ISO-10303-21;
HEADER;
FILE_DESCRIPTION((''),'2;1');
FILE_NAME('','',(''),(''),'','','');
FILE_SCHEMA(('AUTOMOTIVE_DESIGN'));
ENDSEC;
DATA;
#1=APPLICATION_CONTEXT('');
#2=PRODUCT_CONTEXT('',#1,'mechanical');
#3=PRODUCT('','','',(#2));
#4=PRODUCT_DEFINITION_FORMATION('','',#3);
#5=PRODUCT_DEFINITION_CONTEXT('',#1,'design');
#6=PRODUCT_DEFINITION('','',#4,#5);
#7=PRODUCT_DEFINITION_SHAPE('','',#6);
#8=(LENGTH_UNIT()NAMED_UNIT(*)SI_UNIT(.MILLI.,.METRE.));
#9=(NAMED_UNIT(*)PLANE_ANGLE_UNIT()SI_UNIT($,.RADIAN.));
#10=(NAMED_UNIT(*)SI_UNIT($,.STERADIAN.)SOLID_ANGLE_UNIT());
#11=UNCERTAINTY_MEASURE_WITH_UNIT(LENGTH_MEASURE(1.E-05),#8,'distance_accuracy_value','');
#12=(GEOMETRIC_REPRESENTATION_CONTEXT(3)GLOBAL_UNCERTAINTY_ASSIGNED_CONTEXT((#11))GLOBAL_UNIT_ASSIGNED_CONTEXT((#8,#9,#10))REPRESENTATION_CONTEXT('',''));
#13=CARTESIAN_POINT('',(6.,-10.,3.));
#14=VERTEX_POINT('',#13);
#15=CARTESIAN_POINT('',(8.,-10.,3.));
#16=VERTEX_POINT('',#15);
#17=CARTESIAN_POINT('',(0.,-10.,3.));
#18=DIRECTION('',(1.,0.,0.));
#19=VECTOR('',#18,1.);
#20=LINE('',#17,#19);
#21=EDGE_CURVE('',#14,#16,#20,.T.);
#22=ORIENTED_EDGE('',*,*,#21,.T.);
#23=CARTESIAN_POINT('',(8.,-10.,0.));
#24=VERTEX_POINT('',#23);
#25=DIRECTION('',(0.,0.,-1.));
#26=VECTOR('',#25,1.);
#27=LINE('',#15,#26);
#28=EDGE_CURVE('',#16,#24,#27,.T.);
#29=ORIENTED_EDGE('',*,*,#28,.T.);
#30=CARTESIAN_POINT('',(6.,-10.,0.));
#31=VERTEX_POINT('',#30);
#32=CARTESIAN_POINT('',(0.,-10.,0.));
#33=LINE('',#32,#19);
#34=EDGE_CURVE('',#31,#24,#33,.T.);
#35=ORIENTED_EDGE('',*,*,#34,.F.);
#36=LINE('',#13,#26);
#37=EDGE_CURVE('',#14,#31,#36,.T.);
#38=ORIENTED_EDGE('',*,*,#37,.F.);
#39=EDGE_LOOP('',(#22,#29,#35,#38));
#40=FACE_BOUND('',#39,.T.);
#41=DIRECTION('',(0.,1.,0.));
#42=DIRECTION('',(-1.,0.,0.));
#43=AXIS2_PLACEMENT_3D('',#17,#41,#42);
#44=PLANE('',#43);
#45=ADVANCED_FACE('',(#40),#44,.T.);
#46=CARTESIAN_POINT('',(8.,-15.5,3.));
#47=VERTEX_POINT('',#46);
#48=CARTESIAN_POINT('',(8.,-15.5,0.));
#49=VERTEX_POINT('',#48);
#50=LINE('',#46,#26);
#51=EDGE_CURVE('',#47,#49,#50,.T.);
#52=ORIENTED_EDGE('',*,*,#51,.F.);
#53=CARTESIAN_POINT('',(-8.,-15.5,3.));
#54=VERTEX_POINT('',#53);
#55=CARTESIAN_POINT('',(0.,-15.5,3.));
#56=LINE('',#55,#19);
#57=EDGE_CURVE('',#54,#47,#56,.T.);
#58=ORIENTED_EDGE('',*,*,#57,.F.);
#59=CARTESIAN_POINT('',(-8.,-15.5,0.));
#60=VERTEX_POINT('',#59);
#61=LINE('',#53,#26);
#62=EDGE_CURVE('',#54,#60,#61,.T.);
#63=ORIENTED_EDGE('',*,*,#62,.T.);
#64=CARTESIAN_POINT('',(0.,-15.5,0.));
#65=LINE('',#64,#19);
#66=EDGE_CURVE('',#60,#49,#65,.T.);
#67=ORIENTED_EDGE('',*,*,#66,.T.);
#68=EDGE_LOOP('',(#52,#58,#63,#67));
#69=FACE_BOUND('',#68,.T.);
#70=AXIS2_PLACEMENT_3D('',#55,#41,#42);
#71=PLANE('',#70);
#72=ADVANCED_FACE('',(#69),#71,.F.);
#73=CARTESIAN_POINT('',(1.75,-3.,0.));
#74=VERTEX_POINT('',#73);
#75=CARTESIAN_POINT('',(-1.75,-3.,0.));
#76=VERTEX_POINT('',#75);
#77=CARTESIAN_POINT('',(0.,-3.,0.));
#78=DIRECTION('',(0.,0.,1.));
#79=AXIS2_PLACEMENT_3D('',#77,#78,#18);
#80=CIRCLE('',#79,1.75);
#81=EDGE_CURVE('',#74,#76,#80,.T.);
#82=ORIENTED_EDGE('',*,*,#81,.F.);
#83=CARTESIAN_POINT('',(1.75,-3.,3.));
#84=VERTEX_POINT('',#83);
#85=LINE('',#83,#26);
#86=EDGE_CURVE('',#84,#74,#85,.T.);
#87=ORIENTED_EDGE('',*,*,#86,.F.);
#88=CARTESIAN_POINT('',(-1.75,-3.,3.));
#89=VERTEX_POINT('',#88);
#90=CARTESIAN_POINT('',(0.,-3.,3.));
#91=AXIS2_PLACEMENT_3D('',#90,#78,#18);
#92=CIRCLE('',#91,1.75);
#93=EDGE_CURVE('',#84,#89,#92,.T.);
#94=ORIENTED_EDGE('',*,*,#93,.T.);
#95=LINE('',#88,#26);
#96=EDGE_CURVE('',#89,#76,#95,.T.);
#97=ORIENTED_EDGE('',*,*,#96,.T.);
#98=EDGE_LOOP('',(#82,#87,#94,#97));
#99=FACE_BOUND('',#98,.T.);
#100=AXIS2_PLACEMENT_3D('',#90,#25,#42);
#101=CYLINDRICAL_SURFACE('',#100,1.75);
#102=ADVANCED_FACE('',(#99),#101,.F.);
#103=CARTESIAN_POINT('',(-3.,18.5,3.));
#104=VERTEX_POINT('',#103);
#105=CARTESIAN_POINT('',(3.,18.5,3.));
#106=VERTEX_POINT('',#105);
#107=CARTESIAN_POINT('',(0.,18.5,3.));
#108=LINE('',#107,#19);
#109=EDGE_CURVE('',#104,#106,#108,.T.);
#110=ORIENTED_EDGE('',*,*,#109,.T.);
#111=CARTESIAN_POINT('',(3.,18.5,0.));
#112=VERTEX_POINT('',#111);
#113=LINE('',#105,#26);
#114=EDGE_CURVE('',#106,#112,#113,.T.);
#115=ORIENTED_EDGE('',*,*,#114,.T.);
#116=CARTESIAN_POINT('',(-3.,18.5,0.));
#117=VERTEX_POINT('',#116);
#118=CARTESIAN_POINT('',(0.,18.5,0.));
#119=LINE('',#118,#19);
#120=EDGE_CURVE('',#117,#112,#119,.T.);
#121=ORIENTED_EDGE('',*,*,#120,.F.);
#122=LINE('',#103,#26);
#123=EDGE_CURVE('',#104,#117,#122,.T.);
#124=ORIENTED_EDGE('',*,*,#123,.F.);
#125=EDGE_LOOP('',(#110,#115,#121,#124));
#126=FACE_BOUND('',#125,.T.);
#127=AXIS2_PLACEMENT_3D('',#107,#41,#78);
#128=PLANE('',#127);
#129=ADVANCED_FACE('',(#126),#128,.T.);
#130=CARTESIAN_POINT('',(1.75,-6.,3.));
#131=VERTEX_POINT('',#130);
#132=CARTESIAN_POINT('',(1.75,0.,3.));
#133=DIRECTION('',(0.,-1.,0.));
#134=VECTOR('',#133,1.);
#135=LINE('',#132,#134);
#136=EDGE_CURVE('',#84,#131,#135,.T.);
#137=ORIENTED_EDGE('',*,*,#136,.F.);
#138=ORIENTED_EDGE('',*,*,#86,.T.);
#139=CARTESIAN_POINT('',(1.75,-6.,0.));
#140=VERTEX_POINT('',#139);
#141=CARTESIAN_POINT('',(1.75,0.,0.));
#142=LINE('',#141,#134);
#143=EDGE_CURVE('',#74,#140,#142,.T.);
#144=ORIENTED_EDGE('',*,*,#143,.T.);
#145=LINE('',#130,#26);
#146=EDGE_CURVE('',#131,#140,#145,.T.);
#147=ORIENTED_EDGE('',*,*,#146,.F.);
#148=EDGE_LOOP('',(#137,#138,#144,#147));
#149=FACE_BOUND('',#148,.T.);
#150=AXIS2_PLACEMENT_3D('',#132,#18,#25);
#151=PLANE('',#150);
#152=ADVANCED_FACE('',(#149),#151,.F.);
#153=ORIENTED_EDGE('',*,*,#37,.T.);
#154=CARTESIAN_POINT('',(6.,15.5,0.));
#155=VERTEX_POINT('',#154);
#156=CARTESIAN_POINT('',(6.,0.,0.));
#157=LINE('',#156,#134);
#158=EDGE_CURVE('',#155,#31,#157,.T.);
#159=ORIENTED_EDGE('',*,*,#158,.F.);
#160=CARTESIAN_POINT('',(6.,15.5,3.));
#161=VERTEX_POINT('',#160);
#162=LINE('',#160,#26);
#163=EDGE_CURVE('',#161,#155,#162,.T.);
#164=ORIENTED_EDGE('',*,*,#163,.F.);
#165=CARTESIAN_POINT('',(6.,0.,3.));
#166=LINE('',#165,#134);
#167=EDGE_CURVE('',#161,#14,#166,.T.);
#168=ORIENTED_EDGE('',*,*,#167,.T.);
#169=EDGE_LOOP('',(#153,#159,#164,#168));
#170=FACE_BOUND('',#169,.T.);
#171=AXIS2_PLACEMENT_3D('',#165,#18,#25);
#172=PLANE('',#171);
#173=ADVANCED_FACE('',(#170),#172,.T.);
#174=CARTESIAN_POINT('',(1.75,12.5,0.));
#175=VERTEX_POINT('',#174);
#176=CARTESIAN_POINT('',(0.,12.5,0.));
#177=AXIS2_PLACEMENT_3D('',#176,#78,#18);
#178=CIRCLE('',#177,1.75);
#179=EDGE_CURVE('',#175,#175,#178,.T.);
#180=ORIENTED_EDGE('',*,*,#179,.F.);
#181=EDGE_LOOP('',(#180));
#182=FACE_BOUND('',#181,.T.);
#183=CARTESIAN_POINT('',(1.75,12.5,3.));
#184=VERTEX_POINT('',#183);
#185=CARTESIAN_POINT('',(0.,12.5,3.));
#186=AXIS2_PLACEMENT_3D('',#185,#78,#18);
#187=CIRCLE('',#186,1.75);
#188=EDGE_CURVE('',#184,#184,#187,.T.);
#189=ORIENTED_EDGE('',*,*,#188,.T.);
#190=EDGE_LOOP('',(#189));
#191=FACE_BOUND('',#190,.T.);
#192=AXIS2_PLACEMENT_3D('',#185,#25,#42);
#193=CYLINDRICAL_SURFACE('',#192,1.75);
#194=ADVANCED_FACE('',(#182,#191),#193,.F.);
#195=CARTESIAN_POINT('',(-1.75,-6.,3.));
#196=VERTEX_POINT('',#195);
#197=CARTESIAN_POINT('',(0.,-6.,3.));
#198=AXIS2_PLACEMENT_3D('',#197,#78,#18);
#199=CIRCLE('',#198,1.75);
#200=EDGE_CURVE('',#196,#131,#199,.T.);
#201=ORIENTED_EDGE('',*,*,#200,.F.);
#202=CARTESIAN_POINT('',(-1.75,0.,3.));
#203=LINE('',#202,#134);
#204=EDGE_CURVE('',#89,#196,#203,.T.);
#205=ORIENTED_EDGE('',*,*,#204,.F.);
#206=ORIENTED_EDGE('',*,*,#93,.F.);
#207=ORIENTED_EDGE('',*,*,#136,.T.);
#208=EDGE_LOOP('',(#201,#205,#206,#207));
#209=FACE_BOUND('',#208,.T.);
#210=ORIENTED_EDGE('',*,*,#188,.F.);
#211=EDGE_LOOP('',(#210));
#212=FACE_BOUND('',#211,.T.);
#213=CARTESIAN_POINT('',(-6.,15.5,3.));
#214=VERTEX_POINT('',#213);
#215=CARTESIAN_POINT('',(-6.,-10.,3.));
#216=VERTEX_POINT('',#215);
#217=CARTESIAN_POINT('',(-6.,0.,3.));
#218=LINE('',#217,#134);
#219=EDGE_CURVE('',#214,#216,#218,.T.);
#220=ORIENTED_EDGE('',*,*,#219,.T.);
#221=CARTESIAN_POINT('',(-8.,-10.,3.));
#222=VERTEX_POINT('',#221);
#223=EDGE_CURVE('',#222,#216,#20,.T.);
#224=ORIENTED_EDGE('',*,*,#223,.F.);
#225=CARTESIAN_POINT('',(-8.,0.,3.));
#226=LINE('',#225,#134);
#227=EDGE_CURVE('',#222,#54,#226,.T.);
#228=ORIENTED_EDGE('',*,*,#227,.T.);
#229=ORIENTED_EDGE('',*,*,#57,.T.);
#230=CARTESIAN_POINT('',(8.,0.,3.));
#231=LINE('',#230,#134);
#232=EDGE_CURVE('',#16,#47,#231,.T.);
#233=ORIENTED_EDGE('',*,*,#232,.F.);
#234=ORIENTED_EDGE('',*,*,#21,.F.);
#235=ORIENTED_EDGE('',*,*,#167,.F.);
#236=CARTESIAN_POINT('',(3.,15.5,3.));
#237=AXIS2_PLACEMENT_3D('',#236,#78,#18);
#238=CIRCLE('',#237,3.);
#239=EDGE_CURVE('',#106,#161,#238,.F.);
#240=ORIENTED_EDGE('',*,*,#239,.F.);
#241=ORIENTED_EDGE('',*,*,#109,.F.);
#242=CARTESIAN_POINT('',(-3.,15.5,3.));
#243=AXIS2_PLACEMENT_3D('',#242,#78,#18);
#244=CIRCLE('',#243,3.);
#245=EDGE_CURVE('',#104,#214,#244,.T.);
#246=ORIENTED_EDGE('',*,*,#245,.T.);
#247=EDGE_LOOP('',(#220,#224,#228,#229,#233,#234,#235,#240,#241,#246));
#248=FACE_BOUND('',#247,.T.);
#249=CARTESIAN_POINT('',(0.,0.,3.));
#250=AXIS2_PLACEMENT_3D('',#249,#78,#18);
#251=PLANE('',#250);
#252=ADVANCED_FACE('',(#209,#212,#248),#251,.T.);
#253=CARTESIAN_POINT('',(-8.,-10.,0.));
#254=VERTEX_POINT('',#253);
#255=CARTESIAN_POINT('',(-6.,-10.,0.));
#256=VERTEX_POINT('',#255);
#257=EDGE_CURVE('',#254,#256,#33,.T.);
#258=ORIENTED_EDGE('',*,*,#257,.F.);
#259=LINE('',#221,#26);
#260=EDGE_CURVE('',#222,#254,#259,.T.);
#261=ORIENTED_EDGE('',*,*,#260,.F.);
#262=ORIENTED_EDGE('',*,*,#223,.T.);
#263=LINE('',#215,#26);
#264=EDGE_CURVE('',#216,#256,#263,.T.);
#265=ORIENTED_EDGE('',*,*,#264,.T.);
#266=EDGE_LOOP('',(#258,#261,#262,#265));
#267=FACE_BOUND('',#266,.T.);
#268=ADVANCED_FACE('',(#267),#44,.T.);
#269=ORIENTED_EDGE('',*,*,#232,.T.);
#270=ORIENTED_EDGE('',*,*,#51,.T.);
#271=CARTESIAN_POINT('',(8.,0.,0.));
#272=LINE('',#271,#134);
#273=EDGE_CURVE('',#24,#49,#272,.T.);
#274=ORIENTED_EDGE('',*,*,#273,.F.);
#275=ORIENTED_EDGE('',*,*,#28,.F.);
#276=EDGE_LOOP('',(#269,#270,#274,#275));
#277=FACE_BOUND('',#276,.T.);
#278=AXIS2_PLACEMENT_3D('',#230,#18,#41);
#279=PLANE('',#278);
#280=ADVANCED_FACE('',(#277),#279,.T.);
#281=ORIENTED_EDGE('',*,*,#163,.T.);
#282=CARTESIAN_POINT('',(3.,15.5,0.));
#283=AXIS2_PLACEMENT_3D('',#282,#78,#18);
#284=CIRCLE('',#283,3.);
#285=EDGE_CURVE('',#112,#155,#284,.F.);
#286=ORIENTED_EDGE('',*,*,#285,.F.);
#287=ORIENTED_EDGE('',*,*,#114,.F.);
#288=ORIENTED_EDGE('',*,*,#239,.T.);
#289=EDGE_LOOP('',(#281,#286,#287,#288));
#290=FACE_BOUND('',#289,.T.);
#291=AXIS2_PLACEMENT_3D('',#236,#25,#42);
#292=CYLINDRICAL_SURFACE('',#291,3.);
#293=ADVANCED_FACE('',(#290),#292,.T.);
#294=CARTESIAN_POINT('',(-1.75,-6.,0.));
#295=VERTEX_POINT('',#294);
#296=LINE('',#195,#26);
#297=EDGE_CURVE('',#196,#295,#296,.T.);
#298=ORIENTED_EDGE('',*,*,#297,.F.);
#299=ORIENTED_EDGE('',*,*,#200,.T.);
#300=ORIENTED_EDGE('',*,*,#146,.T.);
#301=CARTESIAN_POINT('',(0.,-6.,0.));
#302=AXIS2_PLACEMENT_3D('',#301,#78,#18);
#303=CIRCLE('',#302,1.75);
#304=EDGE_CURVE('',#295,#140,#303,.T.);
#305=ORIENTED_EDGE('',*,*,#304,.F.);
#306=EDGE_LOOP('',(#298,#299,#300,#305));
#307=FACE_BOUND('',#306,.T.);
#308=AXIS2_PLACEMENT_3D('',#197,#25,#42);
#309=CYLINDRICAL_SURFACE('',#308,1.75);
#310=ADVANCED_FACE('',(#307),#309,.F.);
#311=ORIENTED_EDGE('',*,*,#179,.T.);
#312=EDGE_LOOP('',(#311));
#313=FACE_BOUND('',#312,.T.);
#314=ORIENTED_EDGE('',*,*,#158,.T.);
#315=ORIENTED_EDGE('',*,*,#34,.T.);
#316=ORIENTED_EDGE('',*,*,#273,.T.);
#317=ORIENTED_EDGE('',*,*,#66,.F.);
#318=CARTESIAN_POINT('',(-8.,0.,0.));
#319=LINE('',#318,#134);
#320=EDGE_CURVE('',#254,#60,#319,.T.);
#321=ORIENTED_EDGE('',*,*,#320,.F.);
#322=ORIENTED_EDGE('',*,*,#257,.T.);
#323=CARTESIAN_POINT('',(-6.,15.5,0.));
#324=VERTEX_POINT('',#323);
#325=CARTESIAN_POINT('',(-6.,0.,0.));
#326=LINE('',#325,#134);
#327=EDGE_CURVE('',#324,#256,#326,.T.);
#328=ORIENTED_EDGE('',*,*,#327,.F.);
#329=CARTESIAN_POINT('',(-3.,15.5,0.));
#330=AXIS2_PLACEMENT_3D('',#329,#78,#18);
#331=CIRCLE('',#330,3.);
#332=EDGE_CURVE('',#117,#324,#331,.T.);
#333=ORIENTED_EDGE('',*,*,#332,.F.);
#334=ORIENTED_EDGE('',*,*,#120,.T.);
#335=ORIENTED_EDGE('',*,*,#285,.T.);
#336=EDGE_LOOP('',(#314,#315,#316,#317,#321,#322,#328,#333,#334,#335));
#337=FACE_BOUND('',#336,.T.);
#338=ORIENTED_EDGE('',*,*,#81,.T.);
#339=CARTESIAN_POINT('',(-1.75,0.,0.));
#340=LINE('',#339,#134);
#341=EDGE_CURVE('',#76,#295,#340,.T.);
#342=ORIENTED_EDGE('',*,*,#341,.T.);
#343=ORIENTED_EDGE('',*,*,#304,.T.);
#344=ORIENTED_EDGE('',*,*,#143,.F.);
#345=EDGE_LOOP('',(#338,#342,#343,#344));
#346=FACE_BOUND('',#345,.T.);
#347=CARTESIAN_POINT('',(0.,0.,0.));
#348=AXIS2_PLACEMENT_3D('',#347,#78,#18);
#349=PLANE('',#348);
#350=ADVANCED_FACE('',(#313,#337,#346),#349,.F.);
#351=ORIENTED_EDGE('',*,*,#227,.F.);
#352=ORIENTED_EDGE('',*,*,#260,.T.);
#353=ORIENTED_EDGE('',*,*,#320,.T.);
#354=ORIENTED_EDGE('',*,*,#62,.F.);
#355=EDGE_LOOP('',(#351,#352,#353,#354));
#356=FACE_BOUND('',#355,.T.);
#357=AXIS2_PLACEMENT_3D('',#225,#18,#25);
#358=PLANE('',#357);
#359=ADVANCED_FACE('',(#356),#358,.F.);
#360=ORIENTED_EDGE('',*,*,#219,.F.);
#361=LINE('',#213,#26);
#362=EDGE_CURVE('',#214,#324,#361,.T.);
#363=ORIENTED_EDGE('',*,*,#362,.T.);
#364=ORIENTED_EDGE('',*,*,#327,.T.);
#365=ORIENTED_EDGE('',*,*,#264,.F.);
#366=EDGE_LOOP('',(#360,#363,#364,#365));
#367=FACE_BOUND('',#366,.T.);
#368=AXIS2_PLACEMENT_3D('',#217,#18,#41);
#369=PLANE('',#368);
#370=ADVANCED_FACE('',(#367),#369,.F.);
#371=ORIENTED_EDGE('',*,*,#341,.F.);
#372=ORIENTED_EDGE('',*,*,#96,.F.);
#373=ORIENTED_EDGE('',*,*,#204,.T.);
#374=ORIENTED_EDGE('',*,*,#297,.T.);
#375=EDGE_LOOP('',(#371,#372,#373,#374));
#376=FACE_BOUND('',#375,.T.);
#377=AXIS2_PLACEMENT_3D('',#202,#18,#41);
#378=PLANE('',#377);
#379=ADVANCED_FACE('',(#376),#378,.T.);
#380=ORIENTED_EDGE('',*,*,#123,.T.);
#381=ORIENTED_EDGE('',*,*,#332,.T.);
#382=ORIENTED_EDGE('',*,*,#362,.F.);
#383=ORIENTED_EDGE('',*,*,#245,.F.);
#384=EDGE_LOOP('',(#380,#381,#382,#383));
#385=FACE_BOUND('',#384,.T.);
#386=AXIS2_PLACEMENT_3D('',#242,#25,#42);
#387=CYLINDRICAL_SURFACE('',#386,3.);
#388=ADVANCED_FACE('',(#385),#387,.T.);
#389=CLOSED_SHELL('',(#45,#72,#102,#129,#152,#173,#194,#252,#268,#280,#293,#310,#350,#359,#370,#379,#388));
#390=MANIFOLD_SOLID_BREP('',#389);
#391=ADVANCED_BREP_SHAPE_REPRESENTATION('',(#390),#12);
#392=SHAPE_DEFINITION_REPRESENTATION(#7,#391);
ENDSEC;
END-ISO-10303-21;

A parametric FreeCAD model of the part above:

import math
import FreeCAD as App
import Part
import Sketcher

V = App.Vector

doc = App.newDocument("Part")
params = doc.addObject("Spreadsheet::Sheet", "Params")
for row, (alias, value) in enumerate([
    ("sketch1_radius", "3 mm"),
    ("sketch1_diameter", "3.5 mm"),
    ("sketch1_width", "2 mm"),
    ("sketch1_width2", "16 mm"),
    ("sketch1_height", "3 mm"),
    ("pad1_length", "3 mm"),
], start=1):
    params.set(f"A{row}", alias)
    params.set(f"B{row}", "=" + value)
    params.setAlias(f"B{row}", alias)

body = doc.addObject("PartDesign::Body", "Body")

sketch1 = body.newObject("Sketcher::SketchObject", "Sketch")
sketch1.AttachmentSupport = (doc.getObject("XY_Plane"), [""])
sketch1.MapMode = "FlatFace"
sketch1.addGeometry(Part.ArcOfCircle(Part.Circle(V(-3, 15.5, 0), V(0, 0, 1), 3), math.radians(90), math.radians(180)), False)
sketch1.addGeometry(Part.LineSegment(V(-6, 15.5, 0), V(-6, -10, 0)), False)
sketch1.addGeometry(Part.LineSegment(V(-6, -10, 0), V(-8, -10, 0)), False)
sketch1.addGeometry(Part.LineSegment(V(-8, -10, 0), V(-8, -15.5, 0)), False)
sketch1.addGeometry(Part.LineSegment(V(-8, -15.5, 0), V(8, -15.5, 0)), False)
sketch1.addGeometry(Part.LineSegment(V(8, -15.5, 0), V(8, -10, 0)), False)
sketch1.addGeometry(Part.LineSegment(V(8, -10, 0), V(6, -10, 0)), False)
sketch1.addGeometry(Part.LineSegment(V(6, -10, 0), V(6, 15.5, 0)), False)
sketch1.addGeometry(Part.ArcOfCircle(Part.Circle(V(3, 15.5, 0), V(0, 0, 1), 3), math.radians(0), math.radians(90)), False)
sketch1.addGeometry(Part.LineSegment(V(3, 18.5, 0), V(-3, 18.5, 0)), False)
sketch1.addGeometry(Part.LineSegment(V(1.8, -3, 0), V(1.8, -6, 0)), False)
sketch1.addGeometry(Part.ArcOfCircle(Part.Circle(V(0, -6, 0), V(0, 0, 1), 1.8), math.radians(180), math.radians(360)), False)
sketch1.addGeometry(Part.LineSegment(V(-1.8, -6, 0), V(-1.8, -3, 0)), False)
sketch1.addGeometry(Part.ArcOfCircle(Part.Circle(V(0, -3, 0), V(0, 0, 1), 1.8), math.radians(0), math.radians(180)), False)
sketch1.addGeometry(Part.Circle(V(0, 12.5, 0), V(0, 0, 1), 1.8), False)
sketch1.addConstraint(Sketcher.Constraint("Tangent", 0, 2, 1, 1))
sketch1.addConstraint(Sketcher.Constraint("Coincident", 1, 2, 2, 1))
sketch1.addConstraint(Sketcher.Constraint("Coincident", 2, 2, 3, 1))
sketch1.addConstraint(Sketcher.Constraint("Coincident", 3, 2, 4, 1))
sketch1.addConstraint(Sketcher.Constraint("Coincident", 4, 2, 5, 1))
sketch1.addConstraint(Sketcher.Constraint("Coincident", 5, 2, 6, 1))
sketch1.addConstraint(Sketcher.Constraint("Coincident", 6, 2, 7, 1))
sketch1.addConstraint(Sketcher.Constraint("Tangent", 7, 2, 8, 1))
sketch1.addConstraint(Sketcher.Constraint("Tangent", 8, 2, 9, 1))
sketch1.addConstraint(Sketcher.Constraint("Tangent", 9, 2, 0, 1))
sketch1.addConstraint(Sketcher.Constraint("Tangent", 10, 2, 11, 2))
sketch1.addConstraint(Sketcher.Constraint("Tangent", 11, 1, 12, 1))
sketch1.addConstraint(Sketcher.Constraint("Tangent", 12, 2, 13, 2))
sketch1.addConstraint(Sketcher.Constraint("Tangent", 13, 1, 10, 1))
sketch1.addConstraint(Sketcher.Constraint("Vertical", 1))
sketch1.addConstraint(Sketcher.Constraint("Horizontal", 2))
sketch1.addConstraint(Sketcher.Constraint("Vertical", 3))
sketch1.addConstraint(Sketcher.Constraint("Horizontal", 4))
sketch1.addConstraint(Sketcher.Constraint("Vertical", 5))
sketch1.addConstraint(Sketcher.Constraint("Horizontal", 6))
sketch1.addConstraint(Sketcher.Constraint("Vertical", 7))
sketch1.addConstraint(Sketcher.Constraint("Horizontal", 9))
sketch1.addConstraint(Sketcher.Constraint("Vertical", 10))
sketch1.addConstraint(Sketcher.Constraint("Vertical", 12))
sketch1.addConstraint(Sketcher.Constraint("Equal", 0, 8))
sketch1.addConstraint(Sketcher.Constraint("Equal", 13, 14))
sketch1.addConstraint(Sketcher.Constraint("Symmetric", 2, 2, 5, 2, -2))
sketch1.addConstraint(Sketcher.Constraint("PointOnObject", 11, 3, -2))
sketch1.addConstraint(Sketcher.Constraint("PointOnObject", 14, 3, -2))
sketch1.addConstraint(Sketcher.Constraint("Equal", 2, 6))
sketch1.addConstraint(Sketcher.Constraint("Radius", 0, 3.0))
sketch1.addConstraint(Sketcher.Constraint("Diameter", 14, 3.5))
sketch1.addConstraint(Sketcher.Constraint("DistanceX", 2, 2, 2, 1, 2.0))
sketch1.addConstraint(Sketcher.Constraint("DistanceX", 4, 1, 4, 2, 16.0))
sketch1.addConstraint(Sketcher.Constraint("DistanceY", 10, 2, 10, 1, 3.0))
sketch1.addConstraint(Sketcher.Constraint("DistanceY", 1, 2, 1, 1, 25.5))
sketch1.addConstraint(Sketcher.Constraint("DistanceY", 3, 2, 3, 1, 5.5))
sketch1.addConstraint(Sketcher.Constraint("DistanceY", 11, 3, -1, 1, 6.0))
sketch1.addConstraint(Sketcher.Constraint("DistanceY", 1, 2, -1, 1, 10.0))
sketch1.addConstraint(Sketcher.Constraint("DistanceY", 14, 3, 0, 3, 3.0))
sketch1.setExpression("Constraints[30]", "Params.sketch1_radius")
sketch1.setExpression("Constraints[31]", "Params.sketch1_diameter")
sketch1.setExpression("Constraints[32]", "Params.sketch1_width")
sketch1.setExpression("Constraints[33]", "Params.sketch1_width2")
sketch1.setExpression("Constraints[34]", "Params.sketch1_height")
pad1 = body.newObject("PartDesign::Pad", "Pad")
pad1.Profile = sketch1
pad1.setExpression("Length", "Params.pad1_length")

doc.recompute()
